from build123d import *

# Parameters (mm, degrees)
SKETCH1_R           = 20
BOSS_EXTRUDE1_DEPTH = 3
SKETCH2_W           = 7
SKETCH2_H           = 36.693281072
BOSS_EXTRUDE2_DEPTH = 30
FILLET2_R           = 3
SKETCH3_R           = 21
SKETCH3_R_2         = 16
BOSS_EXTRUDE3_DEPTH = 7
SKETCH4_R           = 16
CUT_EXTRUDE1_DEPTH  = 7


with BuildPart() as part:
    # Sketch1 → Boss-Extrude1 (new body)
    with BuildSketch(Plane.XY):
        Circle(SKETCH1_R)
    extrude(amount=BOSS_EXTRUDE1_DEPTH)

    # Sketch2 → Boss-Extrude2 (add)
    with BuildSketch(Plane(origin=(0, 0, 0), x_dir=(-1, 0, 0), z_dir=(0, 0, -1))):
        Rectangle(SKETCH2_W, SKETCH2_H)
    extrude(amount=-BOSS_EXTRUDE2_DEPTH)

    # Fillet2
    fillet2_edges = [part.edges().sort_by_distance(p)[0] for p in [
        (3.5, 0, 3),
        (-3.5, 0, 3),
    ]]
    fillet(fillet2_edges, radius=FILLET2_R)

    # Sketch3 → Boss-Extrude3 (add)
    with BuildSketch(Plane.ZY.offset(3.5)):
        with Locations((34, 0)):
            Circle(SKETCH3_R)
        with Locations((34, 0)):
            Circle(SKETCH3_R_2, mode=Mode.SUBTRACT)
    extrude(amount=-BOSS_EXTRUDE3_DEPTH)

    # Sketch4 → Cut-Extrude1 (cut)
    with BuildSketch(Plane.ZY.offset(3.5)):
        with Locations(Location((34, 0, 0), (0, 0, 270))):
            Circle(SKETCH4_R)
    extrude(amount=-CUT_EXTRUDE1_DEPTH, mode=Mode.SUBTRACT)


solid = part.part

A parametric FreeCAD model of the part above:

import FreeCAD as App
import Part
import Sketcher
from FreeCAD import Vector
Q = App.Units.Quantity


def edges_at(feature, points):
    """Names of the edges that pass closest to the given points."""
    edges = feature.Shape.Edges
    near = lambda p: min(range(len(edges)), key=lambda i: edges[i].distToShape(Part.Vertex(*p))[0])
    return sorted({f"Edge{near(p) + 1}" for p in points})


def add_polygon(sketch, points):
    """Adds a closed chain of lines whose ends are joined by coincident constraints."""
    first, n = sketch.GeometryCount, len(points)
    for a, b in zip(points, points[1:] + points[:1]):
        sketch.addGeometry(Part.LineSegment(App.Vector(*a, 0), App.Vector(*b, 0)), False)
    for i in range(n):
        sketch.addConstraint(Sketcher.Constraint("Coincident", first + i, 2, first + (i + 1) % n, 1))

doc = App.newDocument("Part")
body = doc.addObject("PartDesign::Body", "Body")

# Sketch on XY plane
sketch1 = doc.addObject("Sketcher::SketchObject", "Sketch")
body.addObject(sketch1)
sketch1.AttachmentSupport = (doc.XY_Plane, [""])
sketch1.MapMode = "FlatFace"
sketch1.addGeometry(Part.Circle(Vector(0, 0, 0), Vector(0, 0, 1), 20), False)
sketch1.addConstraint([
    Sketcher.Constraint("Coincident", 0, 3, -1, 1),
    Sketcher.Constraint("Diameter", 0, Q("40 mm")),
])
pad1 = doc.addObject("PartDesign::Pad", "Pad")
body.addObject(pad1)
pad1.Profile = sketch1
pad1.Length = 3

# Sketch on XY plane
sketch2 = doc.addObject("Sketcher::SketchObject", "Sketch001")
body.addObject(sketch2)
sketch2.AttachmentSupport = (doc.XY_Plane, [""])
sketch2.MapMode = "FlatFace"
add_polygon(sketch2, [(4, 18), (4, -18), (-4, -18), (-4, 18)])  # lines 0-3
sketch2.addConstraint([
    Sketcher.Constraint("Vertical", 0),
    Sketcher.Constraint("Horizontal", 1),
    Sketcher.Constraint("Vertical", 2),
    Sketcher.Constraint("Horizontal", 3),
    Sketcher.Constraint("Symmetric", 0, 2, 2, 2, -1, 1),
    Sketcher.Constraint("DistanceX", 1, 2, 1, 1, Q("7 mm")),
    Sketcher.Constraint("DistanceY", 0, 2, 0, 1, Q("36.693281 mm")),
])
pad2 = doc.addObject("PartDesign::Pad", "Pad001")
body.addObject(pad2)
pad2.Profile = sketch2
pad2.Length = 30
doc.recompute()

fillet = doc.addObject("PartDesign::Fillet", "Fillet")
body.addObject(fillet)
fillet.Base = (pad2, edges_at(pad2, [(3.5, 0, 3), (-3.5, 0, 3)]))
fillet.Radius = 3

# Sketch on YZ plane
sketch3 = doc.addObject("Sketcher::SketchObject", "Sketch002")
body.addObject(sketch3)
sketch3.AttachmentSupport = (doc.YZ_Plane, [""])
sketch3.MapMode = "FlatFace"
sketch3.AttachmentOffset = App.Placement(Vector(0, 0, -3.5), App.Rotation())
sketch3.addGeometry([
    Part.Circle(Vector(0, 34, 0), Vector(0, 0, 1), 21),
    Part.Circle(Vector(0, 34, 0), Vector(0, 0, 1), 16),
], False)
sketch3.addConstraint([
    Sketcher.Constraint("Coincident", 1, 3, 0, 3),
    Sketcher.Constraint("PointOnObject", 0, 3, -2),
    Sketcher.Constraint("Diameter", 0, Q("42 mm")),
    Sketcher.Constraint("Diameter", 1, Q("32 mm")),
    Sketcher.Constraint("DistanceY", -1, 1, 0, 3, Q("34 mm")),
])
pad3 = doc.addObject("PartDesign::Pad", "Pad002")
body.addObject(pad3)
pad3.Profile = sketch3
pad3.Length = 7

# Sketch on YZ plane
sketch4 = doc.addObject("Sketcher::SketchObject", "Sketch003")
body.addObject(sketch4)
sketch4.AttachmentSupport = (doc.YZ_Plane, [""])
sketch4.MapMode = "FlatFace"
sketch4.AttachmentOffset = App.Placement(Vector(0, 0, -3.5), App.Rotation())
sketch4.addGeometry(Part.Circle(Vector(0, 34, 0), Vector(0, 0, 1), 16), False)
sketch4.addConstraint([
    Sketcher.Constraint("PointOnObject", 0, 3, -2),
    Sketcher.Constraint("Diameter", 0, Q("32 mm")),
    Sketcher.Constraint("DistanceY", -1, 1, 0, 3, Q("34 mm")),
])
pocket1 = doc.addObject("PartDesign::Pocket", "Pocket")
body.addObject(pocket1)
pocket1.Profile = sketch4
pocket1.Length = 7
pocket1.Reversed = True

doc.recompute()
